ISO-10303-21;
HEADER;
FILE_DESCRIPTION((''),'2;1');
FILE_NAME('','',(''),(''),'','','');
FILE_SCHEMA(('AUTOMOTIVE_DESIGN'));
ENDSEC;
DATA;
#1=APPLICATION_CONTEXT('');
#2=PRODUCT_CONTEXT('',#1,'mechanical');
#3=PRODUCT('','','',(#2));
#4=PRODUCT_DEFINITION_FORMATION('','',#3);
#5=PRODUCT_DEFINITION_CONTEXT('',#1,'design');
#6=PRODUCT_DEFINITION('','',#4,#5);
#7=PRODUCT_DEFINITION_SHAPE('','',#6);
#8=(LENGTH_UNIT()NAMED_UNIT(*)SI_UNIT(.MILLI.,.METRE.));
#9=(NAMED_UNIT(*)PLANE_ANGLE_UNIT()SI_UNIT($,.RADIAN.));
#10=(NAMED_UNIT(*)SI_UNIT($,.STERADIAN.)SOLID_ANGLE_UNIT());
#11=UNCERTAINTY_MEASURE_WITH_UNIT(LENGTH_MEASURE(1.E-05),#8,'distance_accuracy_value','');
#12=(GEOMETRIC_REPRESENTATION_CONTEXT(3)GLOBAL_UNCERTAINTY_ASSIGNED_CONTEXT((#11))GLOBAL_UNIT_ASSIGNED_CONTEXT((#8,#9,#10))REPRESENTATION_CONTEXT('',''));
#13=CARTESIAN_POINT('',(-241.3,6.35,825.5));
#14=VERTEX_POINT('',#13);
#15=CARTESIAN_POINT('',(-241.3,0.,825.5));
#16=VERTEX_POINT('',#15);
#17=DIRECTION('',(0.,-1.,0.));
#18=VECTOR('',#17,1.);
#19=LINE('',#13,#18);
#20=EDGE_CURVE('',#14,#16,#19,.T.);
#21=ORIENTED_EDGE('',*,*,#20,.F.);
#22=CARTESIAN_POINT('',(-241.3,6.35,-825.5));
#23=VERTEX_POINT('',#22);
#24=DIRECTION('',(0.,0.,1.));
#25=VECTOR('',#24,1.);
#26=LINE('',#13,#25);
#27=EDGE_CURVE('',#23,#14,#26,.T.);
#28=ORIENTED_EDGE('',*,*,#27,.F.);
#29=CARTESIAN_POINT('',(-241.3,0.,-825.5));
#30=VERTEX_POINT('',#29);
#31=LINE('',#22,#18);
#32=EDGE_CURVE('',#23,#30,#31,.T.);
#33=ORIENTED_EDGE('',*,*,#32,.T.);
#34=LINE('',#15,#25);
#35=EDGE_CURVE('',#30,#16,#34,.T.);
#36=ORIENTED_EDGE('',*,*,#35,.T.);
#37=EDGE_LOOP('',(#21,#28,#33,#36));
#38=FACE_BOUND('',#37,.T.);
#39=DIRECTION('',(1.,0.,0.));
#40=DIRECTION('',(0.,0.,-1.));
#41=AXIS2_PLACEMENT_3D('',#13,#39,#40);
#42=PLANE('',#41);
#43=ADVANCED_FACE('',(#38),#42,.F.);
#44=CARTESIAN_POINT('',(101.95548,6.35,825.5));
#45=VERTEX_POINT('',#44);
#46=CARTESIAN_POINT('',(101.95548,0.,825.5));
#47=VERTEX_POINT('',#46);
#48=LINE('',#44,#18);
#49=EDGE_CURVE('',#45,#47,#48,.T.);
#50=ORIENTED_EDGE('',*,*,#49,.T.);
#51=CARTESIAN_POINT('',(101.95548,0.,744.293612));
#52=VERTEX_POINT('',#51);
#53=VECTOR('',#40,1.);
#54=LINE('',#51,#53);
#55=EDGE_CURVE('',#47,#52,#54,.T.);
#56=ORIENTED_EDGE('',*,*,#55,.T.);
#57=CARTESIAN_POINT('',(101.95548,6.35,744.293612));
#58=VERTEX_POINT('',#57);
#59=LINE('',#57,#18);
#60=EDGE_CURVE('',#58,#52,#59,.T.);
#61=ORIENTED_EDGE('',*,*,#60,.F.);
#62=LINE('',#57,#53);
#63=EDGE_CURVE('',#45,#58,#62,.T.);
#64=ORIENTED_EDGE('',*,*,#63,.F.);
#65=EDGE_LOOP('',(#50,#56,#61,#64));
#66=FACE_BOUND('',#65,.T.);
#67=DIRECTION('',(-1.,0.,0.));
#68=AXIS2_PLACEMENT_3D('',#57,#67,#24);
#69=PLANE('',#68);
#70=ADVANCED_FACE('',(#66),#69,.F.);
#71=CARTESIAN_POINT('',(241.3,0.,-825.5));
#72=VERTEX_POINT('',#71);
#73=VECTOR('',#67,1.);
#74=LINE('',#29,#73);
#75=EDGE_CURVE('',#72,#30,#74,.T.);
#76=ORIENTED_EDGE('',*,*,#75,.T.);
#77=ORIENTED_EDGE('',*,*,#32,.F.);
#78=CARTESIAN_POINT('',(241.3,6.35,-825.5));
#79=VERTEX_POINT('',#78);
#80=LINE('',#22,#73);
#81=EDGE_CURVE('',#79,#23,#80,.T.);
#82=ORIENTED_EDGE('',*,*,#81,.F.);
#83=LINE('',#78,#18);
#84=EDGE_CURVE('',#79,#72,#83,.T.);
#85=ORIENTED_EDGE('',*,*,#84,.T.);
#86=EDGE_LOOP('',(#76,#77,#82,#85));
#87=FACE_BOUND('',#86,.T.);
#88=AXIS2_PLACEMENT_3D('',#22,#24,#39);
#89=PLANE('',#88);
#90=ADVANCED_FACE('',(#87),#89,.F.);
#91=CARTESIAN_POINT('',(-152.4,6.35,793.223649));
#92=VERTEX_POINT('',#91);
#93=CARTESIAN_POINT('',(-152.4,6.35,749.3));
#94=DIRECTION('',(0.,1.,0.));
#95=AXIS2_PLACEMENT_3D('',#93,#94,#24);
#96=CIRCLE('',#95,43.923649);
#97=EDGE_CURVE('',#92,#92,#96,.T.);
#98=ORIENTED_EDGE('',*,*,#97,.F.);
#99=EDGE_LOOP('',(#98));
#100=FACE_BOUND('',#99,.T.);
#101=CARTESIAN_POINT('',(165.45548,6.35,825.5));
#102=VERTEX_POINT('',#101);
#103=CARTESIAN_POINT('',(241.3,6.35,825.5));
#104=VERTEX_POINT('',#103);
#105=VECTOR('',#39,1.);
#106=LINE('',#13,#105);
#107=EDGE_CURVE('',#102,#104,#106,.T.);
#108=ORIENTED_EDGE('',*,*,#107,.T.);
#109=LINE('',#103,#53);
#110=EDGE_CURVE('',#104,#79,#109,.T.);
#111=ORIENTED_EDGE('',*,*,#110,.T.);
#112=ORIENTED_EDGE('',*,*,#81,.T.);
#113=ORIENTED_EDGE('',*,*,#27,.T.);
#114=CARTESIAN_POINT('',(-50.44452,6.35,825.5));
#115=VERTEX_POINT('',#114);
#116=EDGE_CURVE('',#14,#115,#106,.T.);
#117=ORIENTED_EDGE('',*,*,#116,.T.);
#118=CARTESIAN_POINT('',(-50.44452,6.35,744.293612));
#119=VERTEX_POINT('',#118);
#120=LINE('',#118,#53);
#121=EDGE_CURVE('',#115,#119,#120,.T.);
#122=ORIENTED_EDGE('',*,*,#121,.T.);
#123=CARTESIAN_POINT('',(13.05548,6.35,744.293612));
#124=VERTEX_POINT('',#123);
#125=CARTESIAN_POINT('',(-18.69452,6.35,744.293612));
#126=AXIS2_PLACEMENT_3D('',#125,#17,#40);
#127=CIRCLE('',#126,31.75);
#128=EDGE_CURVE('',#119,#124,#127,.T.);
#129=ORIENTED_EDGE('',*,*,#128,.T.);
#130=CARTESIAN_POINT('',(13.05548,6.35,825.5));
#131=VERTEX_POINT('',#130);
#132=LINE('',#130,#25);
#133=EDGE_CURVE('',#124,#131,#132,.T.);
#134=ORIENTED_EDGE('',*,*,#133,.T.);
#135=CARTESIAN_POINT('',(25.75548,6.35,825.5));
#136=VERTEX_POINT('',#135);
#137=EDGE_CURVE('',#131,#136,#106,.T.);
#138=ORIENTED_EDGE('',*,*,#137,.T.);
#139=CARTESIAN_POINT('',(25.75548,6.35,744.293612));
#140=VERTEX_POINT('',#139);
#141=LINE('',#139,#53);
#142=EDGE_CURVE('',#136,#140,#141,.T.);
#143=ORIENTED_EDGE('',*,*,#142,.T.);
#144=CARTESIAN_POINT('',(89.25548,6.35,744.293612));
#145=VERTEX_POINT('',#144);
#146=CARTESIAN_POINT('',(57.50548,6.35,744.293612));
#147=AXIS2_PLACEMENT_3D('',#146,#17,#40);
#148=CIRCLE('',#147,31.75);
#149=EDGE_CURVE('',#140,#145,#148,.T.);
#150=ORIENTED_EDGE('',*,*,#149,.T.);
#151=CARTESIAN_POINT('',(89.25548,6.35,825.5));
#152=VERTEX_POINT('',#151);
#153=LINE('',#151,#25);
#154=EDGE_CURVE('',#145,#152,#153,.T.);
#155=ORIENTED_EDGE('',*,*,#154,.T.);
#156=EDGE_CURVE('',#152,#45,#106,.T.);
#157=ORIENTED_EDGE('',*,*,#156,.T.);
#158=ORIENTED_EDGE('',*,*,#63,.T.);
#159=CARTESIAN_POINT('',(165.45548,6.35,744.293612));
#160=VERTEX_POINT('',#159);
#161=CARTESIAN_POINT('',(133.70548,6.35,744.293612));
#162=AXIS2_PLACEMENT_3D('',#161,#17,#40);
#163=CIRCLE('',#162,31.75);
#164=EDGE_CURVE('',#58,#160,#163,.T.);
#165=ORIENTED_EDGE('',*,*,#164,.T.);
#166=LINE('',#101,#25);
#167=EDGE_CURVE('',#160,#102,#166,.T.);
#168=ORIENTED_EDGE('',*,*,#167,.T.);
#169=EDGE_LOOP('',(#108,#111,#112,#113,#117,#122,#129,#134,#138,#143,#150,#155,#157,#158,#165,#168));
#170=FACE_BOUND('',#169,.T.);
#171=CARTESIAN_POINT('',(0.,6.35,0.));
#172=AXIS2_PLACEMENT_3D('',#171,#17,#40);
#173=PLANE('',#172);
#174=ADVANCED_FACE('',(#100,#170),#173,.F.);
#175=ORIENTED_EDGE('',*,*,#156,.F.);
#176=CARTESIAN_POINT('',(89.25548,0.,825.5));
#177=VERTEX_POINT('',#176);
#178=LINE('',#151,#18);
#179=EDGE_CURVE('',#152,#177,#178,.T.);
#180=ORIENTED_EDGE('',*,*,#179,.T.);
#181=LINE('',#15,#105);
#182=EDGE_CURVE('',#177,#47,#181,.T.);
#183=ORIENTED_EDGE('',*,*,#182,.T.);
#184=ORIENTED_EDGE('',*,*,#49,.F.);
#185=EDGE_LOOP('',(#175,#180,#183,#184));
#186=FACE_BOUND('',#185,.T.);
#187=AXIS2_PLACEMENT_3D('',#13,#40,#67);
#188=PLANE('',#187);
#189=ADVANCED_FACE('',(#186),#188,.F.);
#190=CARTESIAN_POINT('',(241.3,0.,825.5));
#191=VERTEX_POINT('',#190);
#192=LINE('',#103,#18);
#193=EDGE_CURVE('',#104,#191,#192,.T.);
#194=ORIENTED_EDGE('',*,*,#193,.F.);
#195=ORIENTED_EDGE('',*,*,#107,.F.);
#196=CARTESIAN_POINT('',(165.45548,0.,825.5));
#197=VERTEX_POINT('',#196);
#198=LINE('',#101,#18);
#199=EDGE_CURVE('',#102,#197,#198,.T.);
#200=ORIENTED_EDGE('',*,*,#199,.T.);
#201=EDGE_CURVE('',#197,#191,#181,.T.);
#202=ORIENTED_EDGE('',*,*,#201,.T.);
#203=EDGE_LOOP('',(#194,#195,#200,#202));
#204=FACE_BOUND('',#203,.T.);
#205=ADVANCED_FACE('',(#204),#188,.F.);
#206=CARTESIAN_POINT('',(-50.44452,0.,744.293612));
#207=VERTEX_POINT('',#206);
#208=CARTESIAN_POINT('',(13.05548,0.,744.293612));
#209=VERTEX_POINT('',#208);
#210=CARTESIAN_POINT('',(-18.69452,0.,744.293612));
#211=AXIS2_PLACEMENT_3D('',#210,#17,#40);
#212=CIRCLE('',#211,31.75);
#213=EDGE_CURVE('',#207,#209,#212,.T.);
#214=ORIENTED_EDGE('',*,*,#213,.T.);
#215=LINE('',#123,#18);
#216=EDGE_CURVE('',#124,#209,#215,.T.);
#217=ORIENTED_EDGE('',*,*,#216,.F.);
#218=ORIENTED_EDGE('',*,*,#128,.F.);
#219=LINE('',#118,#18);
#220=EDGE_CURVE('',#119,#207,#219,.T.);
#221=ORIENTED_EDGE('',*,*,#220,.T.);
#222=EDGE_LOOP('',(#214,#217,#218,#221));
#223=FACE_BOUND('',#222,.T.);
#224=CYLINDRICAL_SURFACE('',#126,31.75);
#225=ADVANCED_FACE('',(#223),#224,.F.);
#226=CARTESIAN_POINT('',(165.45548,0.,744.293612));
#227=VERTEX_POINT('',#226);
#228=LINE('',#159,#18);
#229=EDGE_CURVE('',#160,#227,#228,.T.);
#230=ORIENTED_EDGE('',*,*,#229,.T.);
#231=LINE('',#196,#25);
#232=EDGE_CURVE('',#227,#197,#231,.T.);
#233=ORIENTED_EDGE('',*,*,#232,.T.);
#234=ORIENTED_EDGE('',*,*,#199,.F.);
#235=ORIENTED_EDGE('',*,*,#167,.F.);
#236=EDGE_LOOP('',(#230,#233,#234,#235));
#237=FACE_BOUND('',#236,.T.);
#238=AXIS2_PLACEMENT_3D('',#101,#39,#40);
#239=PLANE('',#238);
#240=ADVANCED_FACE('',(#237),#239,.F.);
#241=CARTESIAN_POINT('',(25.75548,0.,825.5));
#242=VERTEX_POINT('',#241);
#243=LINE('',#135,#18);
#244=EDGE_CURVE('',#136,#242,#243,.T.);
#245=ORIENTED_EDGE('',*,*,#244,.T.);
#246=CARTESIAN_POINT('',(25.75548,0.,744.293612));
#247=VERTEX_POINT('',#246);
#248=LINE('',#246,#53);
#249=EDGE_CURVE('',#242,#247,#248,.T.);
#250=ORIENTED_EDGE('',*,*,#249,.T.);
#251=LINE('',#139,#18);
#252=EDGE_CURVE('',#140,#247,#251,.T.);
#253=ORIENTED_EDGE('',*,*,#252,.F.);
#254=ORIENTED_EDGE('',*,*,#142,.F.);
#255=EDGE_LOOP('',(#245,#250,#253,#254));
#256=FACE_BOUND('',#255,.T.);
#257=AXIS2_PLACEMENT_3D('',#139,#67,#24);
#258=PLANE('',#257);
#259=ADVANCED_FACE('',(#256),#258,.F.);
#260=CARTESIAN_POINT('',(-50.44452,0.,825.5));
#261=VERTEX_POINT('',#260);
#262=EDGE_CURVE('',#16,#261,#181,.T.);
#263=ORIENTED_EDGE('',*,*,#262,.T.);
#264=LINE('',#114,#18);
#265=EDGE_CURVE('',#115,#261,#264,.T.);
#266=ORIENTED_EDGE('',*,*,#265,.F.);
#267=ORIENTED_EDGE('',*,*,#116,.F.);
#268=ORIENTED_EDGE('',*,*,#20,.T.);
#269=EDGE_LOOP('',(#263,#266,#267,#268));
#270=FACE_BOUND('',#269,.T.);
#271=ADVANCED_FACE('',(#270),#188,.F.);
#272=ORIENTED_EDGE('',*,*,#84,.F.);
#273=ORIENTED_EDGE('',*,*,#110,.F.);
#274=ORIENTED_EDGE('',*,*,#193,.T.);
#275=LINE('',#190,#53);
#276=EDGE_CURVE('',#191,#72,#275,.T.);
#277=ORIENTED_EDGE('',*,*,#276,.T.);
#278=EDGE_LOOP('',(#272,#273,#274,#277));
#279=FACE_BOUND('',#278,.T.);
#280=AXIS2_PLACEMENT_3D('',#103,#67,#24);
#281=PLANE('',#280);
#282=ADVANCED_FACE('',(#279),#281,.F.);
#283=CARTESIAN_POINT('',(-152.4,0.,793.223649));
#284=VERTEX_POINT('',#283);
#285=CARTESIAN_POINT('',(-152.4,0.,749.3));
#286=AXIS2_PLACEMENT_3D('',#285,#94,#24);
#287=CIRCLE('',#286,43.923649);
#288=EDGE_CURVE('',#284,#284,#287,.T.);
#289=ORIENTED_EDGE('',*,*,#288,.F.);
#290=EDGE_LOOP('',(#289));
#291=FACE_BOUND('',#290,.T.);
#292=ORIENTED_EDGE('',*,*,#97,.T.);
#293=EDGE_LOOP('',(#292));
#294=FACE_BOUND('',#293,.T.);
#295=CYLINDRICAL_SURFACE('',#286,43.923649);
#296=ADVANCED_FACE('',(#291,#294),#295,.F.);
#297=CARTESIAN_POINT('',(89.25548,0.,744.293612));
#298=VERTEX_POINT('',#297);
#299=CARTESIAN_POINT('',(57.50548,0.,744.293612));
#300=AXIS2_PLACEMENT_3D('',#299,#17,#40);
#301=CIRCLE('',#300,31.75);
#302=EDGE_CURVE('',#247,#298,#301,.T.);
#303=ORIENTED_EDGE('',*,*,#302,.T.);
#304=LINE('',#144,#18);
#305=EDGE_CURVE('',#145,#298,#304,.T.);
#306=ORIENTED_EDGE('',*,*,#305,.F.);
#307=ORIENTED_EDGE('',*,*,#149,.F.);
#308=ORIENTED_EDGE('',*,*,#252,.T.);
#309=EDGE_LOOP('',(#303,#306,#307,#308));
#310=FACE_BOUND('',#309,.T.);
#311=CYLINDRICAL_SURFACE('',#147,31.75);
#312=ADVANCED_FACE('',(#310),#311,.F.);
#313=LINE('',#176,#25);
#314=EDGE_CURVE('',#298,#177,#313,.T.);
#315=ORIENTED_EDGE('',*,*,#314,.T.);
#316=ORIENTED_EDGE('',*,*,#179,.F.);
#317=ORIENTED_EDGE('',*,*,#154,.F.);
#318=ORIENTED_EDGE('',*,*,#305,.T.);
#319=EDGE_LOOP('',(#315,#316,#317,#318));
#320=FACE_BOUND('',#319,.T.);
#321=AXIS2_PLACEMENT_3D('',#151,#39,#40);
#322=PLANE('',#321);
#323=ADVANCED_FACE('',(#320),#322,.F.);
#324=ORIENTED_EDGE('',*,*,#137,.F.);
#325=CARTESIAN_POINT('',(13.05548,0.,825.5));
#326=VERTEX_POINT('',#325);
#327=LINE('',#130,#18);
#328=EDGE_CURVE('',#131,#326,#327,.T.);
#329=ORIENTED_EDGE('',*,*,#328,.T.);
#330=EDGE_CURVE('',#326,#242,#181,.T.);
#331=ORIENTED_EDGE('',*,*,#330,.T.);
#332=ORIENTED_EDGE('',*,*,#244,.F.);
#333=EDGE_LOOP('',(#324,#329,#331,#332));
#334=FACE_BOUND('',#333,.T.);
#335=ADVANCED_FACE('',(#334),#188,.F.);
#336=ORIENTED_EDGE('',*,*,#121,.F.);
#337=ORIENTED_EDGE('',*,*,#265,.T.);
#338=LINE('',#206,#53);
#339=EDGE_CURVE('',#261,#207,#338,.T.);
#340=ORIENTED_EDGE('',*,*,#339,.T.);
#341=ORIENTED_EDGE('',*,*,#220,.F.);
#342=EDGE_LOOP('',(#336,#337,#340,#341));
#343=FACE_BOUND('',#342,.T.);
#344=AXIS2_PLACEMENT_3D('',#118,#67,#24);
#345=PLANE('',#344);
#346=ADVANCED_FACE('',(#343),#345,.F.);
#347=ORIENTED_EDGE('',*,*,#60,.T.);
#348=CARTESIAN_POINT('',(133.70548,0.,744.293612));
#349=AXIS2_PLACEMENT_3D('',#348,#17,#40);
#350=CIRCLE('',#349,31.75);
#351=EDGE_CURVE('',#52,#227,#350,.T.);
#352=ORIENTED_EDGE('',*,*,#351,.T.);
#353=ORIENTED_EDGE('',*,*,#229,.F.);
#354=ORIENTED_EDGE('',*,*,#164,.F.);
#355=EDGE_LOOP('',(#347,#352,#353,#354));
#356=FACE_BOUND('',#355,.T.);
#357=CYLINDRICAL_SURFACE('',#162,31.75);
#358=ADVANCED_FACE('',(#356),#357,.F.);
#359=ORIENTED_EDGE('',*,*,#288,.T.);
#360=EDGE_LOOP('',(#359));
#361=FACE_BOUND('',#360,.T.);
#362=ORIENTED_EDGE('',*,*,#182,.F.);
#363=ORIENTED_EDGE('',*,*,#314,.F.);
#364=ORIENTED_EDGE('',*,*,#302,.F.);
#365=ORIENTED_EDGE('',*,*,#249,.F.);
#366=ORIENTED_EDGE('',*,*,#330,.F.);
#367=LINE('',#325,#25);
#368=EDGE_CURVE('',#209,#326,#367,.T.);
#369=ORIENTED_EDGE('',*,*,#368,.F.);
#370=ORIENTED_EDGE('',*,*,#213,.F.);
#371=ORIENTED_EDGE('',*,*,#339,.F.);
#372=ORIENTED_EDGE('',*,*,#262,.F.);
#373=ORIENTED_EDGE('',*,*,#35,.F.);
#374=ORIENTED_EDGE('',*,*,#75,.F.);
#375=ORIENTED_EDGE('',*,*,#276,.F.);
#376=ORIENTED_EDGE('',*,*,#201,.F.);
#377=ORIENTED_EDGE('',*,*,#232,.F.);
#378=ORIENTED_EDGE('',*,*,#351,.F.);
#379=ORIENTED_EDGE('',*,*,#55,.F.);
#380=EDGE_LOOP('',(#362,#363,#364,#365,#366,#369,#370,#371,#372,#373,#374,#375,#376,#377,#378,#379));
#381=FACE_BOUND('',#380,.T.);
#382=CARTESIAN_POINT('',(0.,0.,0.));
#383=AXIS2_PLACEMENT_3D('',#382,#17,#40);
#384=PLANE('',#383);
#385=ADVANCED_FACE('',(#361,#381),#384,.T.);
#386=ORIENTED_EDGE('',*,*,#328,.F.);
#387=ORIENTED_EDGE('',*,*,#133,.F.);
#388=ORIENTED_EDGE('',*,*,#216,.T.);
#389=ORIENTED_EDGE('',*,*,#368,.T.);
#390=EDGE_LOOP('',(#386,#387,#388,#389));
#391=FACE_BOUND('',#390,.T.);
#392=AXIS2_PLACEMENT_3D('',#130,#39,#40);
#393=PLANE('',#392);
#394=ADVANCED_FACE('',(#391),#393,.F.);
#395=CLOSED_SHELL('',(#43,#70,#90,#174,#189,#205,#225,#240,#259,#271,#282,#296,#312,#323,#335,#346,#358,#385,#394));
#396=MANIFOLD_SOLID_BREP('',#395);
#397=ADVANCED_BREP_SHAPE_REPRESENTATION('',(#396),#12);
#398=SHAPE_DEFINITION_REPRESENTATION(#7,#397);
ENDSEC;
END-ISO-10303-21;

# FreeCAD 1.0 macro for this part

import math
import FreeCAD as App
import Part
import Sketcher
Q = App.Units.Quantity

doc = App.newDocument("Part")
body = doc.addObject("PartDesign::Body", "Body")

# Sketch on XZ plane
sketch1 = body.newObject("Sketcher::SketchObject", "Sketch")
sketch1.AttachmentSupport = (doc.getObject("XZ_Plane"), [""])
sketch1.MapMode = "FlatFace"
sketch1.addGeometry([
    Part.LineSegment(App.Vector(-241, -826, 0), App.Vector(-241, 826, 0)),
    Part.LineSegment(App.Vector(-241, 826, 0), App.Vector(241, 826, 0)),
    Part.LineSegment(App.Vector(241, 826, 0), App.Vector(241, -826, 0)),
    Part.LineSegment(App.Vector(241, -826, 0), App.Vector(-241, -826, 0)),
], False)
sketch1.addConstraint([
    Sketcher.Constraint("Coincident", 0, 2, 1, 1),
    Sketcher.Constraint("Coincident", 1, 2, 2, 1),
    Sketcher.Constraint("Coincident", 2, 2, 3, 1),
    Sketcher.Constraint("Coincident", 3, 2, 0, 1),
    Sketcher.Constraint("Vertical", 0),
    Sketcher.Constraint("Horizontal", 1),
    Sketcher.Constraint("Vertical", 2),
    Sketcher.Constraint("Horizontal", 3),
    Sketcher.Constraint("Symmetric", 0, 2, 2, 2, -1, 1),
    Sketcher.Constraint("DistanceX", 1, 1, 1, 2, Q("19 in")),
    Sketcher.Constraint("DistanceY", 0, 1, 0, 2, Q("65 in")),
])
pad1 = body.newObject("PartDesign::Pad", "Pad")
pad1.Profile = sketch1
pad1.Length = Q("0.25 in")
pad1.Reversed = True

# Sketch on XZ plane
sketch2 = body.newObject("Sketcher::SketchObject", "Sketch001")
sketch2.AttachmentSupport = (doc.getObject("XZ_Plane"), [""])
sketch2.MapMode = "FlatFace"
sketch2.AttachmentOffset = App.Placement(App.Vector(0, 0, -0.25 * 25.4), App.Rotation())
sketch2.addGeometry(Part.Circle(App.Vector(-152, 749, 0), App.Vector(0, 0, 1), 44), False)
sketch2.addConstraint([
    Sketcher.Constraint("DistanceX", 0, 3, -1, 1, Q("6 in")),
    Sketcher.Constraint("DistanceY", -1, 1, 0, 3, Q("29.5 in")),
    Sketcher.Constraint("Diameter", 0, 87.847299),
])
pocket1 = body.newObject("PartDesign::Pocket", "Pocket")
pocket1.Profile = sketch2
pocket1.Type = "ThroughAll"
pocket1.Reversed = True

# Sketch on XZ plane
sketch3 = body.newObject("Sketcher::SketchObject", "Sketch002")
sketch3.AttachmentSupport = (doc.getObject("XZ_Plane"), [""])
sketch3.MapMode = "FlatFace"
sketch3.addGeometry([
    Part.LineSegment(App.Vector(-50, 826, 0), App.Vector(-50, 744, 0)),  # 0
    Part.ArcOfCircle(Part.Circle(App.Vector(-19, 744, 0), App.Vector(0, 0, 1), 32), math.radians(180), math.radians(360)),  # 1
    Part.LineSegment(App.Vector(13, 744, 0), App.Vector(13, 826, 0)),  # 2
    Part.LineSegment(App.Vector(13, 826, 0), App.Vector(-50, 826, 0)),  # 3
    Part.LineSegment(App.Vector(26, 826, 0), App.Vector(26, 744, 0)),  # 4
    Part.ArcOfCircle(Part.Circle(App.Vector(58, 744, 0), App.Vector(0, 0, 1), 32), math.radians(180), math.radians(360)),  # 5
    Part.LineSegment(App.Vector(89, 744, 0), App.Vector(89, 826, 0)),  # 6
    Part.LineSegment(App.Vector(89, 826, 0), App.Vector(26, 826, 0)),  # 7
    Part.LineSegment(App.Vector(102, 826, 0), App.Vector(102, 744, 0)),  # 8
    Part.ArcOfCircle(Part.Circle(App.Vector(134, 744, 0), App.Vector(0, 0, 1), 32), math.radians(180), math.radians(360)),  # 9
    Part.LineSegment(App.Vector(165, 744, 0), App.Vector(165, 826, 0)),  # 10
    Part.LineSegment(App.Vector(165, 826, 0), App.Vector(102, 826, 0)),  # 11
], False)
sketch3.addConstraint([
    Sketcher.Constraint("Tangent", 0, 2, 1, 1),
    Sketcher.Constraint("Tangent", 1, 2, 2, 1),
    Sketcher.Constraint("Coincident", 2, 2, 3, 1),
    Sketcher.Constraint("Coincident", 3, 2, 0, 1),
    Sketcher.Constraint("Tangent", 4, 2, 5, 1),
    Sketcher.Constraint("Tangent", 5, 2, 6, 1),
    Sketcher.Constraint("Coincident", 6, 2, 7, 1),
    Sketcher.Constraint("Coincident", 7, 2, 4, 1),
    Sketcher.Constraint("Tangent", 8, 2, 9, 1),
    Sketcher.Constraint("Tangent", 9, 2, 10, 1),
    Sketcher.Constraint("Coincident", 10, 2, 11, 1),
    Sketcher.Constraint("Coincident", 11, 2, 8, 1),
    Sketcher.Constraint("Vertical", 0),
    Sketcher.Constraint("Vertical", 2),
    Sketcher.Constraint("Horizontal", 3),
    Sketcher.Constraint("Vertical", 4),
    Sketcher.Constraint("Vertical", 6),
    Sketcher.Constraint("Horizontal", 7),
    Sketcher.Constraint("Vertical", 8),
    Sketcher.Constraint("Vertical", 10),
    Sketcher.Constraint("Horizontal", 11),
    Sketcher.Constraint("Equal", 1, 5),
    Sketcher.Constraint("Equal", 5, 9),
    Sketcher.Constraint("Horizontal", 1, 3, 5, 3),
    Sketcher.Constraint("Horizontal", 5, 3, 9, 3),
    Sketcher.Constraint("Horizontal", 3, 2, 6, 2),
    Sketcher.Constraint("Horizontal", 7, 2, 10, 2),
    Sketcher.Constraint("Radius", 1, Q("1.25 in")),
    Sketcher.Constraint("DistanceX", 1, 3, 5, 3, Q("3 in")),
    Sketcher.Constraint("DistanceX", 5, 3, 9, 3, Q("3 in")),
    Sketcher.Constraint("DistanceY", -1, 1, 2, 2, Q("32.5 in")),
    Sketcher.Constraint("DistanceY", 0, 2, 0, 1, 81.206388),
    Sketcher.Constraint("DistanceX", 1, 3, -1, 1, 18.69452),
])
pocket2 = body.newObject("PartDesign::Pocket", "Pocket001")
pocket2.Profile = sketch3
pocket2.Type = "ThroughAll"

doc.recompute()
